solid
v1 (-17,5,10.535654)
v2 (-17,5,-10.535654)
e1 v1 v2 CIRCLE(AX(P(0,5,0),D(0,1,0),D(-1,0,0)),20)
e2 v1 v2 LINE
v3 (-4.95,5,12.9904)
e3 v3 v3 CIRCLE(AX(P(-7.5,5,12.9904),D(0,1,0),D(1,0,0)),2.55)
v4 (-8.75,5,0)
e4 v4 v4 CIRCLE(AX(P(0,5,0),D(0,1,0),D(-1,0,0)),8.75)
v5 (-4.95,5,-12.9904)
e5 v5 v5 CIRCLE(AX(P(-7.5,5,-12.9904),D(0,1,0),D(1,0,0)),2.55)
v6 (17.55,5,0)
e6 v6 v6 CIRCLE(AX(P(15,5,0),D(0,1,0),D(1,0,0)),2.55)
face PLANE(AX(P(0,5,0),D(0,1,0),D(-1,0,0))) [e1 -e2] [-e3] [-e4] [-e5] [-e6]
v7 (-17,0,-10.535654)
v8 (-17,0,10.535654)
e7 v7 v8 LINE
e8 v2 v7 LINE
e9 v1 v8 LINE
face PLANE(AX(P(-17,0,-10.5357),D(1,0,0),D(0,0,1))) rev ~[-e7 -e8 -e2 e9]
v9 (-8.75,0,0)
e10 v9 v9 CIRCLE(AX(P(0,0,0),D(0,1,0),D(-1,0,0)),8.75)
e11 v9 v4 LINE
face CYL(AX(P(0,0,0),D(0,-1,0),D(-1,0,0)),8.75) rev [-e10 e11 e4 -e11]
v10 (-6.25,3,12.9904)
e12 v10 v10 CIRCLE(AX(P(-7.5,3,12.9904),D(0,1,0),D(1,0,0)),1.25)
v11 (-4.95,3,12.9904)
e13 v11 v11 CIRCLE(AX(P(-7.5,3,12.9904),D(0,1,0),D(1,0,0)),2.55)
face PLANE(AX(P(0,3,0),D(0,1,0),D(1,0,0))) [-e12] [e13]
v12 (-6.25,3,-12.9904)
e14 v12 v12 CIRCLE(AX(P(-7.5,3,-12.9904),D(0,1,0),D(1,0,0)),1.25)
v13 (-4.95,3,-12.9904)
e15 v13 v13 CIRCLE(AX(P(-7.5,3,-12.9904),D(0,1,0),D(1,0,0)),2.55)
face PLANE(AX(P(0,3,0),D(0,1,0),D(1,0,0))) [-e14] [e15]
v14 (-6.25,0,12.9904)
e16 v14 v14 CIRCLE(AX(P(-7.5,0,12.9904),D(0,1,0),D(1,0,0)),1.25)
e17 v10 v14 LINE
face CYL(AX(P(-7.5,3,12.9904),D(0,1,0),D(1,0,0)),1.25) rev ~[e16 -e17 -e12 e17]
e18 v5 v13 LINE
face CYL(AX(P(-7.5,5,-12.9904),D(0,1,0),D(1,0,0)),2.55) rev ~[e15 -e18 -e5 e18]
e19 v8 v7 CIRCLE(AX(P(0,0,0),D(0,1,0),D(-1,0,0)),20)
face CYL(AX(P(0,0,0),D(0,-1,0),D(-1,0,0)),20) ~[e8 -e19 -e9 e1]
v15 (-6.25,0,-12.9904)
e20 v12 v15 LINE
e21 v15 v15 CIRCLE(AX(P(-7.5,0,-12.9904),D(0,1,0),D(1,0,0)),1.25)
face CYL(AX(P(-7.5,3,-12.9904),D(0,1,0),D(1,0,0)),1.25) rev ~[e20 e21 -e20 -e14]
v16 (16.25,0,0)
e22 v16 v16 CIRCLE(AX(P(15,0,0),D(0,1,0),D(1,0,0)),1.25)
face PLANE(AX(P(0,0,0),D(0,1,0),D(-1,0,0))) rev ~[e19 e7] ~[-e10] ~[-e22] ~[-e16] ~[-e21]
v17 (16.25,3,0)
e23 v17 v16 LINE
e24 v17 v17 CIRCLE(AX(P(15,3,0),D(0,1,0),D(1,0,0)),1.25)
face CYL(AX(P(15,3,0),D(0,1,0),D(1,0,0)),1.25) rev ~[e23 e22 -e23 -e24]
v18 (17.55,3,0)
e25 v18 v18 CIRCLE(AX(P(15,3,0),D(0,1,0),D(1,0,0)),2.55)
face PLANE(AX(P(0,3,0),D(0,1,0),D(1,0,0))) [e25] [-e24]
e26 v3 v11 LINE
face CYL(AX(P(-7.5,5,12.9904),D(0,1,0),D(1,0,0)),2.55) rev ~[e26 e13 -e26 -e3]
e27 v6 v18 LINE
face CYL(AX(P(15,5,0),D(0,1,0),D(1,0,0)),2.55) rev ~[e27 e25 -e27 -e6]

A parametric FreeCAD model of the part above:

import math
import FreeCAD as App
import Part
import Sketcher
Q = App.Units.Quantity

doc = App.newDocument("Part")
body = doc.addObject("PartDesign::Body", "Body")

# Sketch on XZ plane
sketch1 = body.newObject("Sketcher::SketchObject", "Sketch")
sketch1.AttachmentSupport = (doc.getObject("XZ_Plane"), [""])
sketch1.MapMode = "FlatFace"
sketch1.addGeometry(Part.Circle(App.Vector(0, 0, 0), App.Vector(0, 0, 1), 20), False)
sketch1.addGeometry(Part.Circle(App.Vector(0, 0, 0), App.Vector(0, 0, 1), 9), False)
sketch1.addConstraint(Sketcher.Constraint("Coincident", 0, 3, -1, 1))
sketch1.addConstraint(Sketcher.Constraint("Coincident", 1, 3, -1, 1))
sketch1.addConstraint(Sketcher.Constraint("Diameter", 0, Q("40 mm")))
sketch1.addConstraint(Sketcher.Constraint("Diameter", 1, Q("17.5 mm")))
pad1 = body.newObject("PartDesign::Pad", "Pad")
pad1.Profile = sketch1
pad1.Length = 5
pad1.Reversed = True

# Sketch on XZ plane
sketch2 = body.newObject("Sketcher::SketchObject", "Sketch001")
sketch2.AttachmentSupport = (doc.getObject("XZ_Plane"), [""])
sketch2.MapMode = "FlatFace"
sketch2.AttachmentOffset = App.Placement(App.Vector(0, 0, -5), App.Rotation())
sketch2.addGeometry(Part.Circle(App.Vector(15, 0, 0), App.Vector(0, 0, 1), 2.5), False)
sketch2.addGeometry(Part.Circle(App.Vector(-7.5, -13, 0), App.Vector(0, 0, 1), 2.5), False)
sketch2.addGeometry(Part.Circle(App.Vector(-7.5, 13, 0), App.Vector(0, 0, 1), 2.5), False)
sketch2.addConstraint(Sketcher.Constraint("Equal", 0, 1))
sketch2.addConstraint(Sketcher.Constraint("Equal", 1, 2))
sketch2.addConstraint(Sketcher.Constraint("Symmetric", 1, 3, 2, 3, -1))
sketch2.addConstraint(Sketcher.Constraint("PointOnObject", 0, 3, -1))
sketch2.addConstraint(Sketcher.Constraint("Diameter", 0, Q("5.1 mm")))
sketch2.addConstraint(Sketcher.Constraint("DistanceX", -1, 1, 0, 3, Q("15 mm")))
sketch2.addConstraint(Sketcher.Constraint("DistanceX", 1, 3, -1, 1, Q("7.5 mm")))
sketch2.addConstraint(Sketcher.Constraint("DistanceY", 1, 3, -1, 1, Q("12.9904 mm")))
pocket1 = body.newObject("PartDesign::Pocket", "Pocket")
pocket1.Profile = sketch2
pocket1.Length = 2
pocket1.Reversed = True

# Sketch on XZ plane
sketch3 = body.newObject("Sketcher::SketchObject", "Sketch002")
sketch3.AttachmentSupport = (doc.getObject("XZ_Plane"), [""])
sketch3.MapMode = "FlatFace"
sketch3.AttachmentOffset = App.Placement(App.Vector(0, 0, -3), App.Rotation())
sketch3.addGeometry(Part.Circle(App.Vector(-7.5, 13, 0), App.Vector(0, 0, 1), 1.2), False)
sketch3.addGeometry(Part.Circle(App.Vector(15, 0, 0), App.Vector(0, 0, 1), 1.2), False)
sketch3.addGeometry(Part.Circle(App.Vector(-7.5, -13, 0), App.Vector(0, 0, 1), 1.2), False)
sketch3.addConstraint(Sketcher.Constraint("Equal", 0, 1))
sketch3.addConstraint(Sketcher.Constraint("Equal", 1, 2))
sketch3.addConstraint(Sketcher.Constraint("Symmetric", 0, 3, 2, 3, -1))
sketch3.addConstraint(Sketcher.Constraint("PointOnObject", 1, 3, -1))
sketch3.addConstraint(Sketcher.Constraint("Diameter", 0, Q("2.5 mm")))
sketch3.addConstraint(Sketcher.Constraint("DistanceX", -1, 1, 1, 3, Q("15 mm")))
sketch3.addConstraint(Sketcher.Constraint("DistanceX", 0, 3, -1, 1, Q("7.5 mm")))
sketch3.addConstraint(Sketcher.Constraint("DistanceY", -1, 1, 0, 3, Q("12.9904 mm")))
pocket2 = body.newObject("PartDesign::Pocket", "Pocket001")
pocket2.Profile = sketch3
pocket2.Length = 3
pocket2.Reversed = True

# Sketch on XZ plane
sketch4 = body.newObject("Sketcher::SketchObject", "Sketch003")
sketch4.AttachmentSupport = (doc.getObject("XZ_Plane"), [""])
sketch4.MapMode = "FlatFace"
sketch4.addGeometry(Part.ArcOfCircle(Part.Circle(App.Vector(0, 0, 0), App.Vector(0, 0, 1), 20), math.radians(148), math.radians(212)), False)
sketch4.addGeometry(Part.LineSegment(App.Vector(-17, -11, 0), App.Vector(-17, 11, 0)), False)
sketch4.addConstraint(Sketcher.Constraint("Coincident", 0, 1, 1, 2))
sketch4.addConstraint(Sketcher.Constraint("Coincident", 1, 1, 0, 2))
sketch4.addConstraint(Sketcher.Constraint("Vertical", 1))
sketch4.addConstraint(Sketcher.Constraint("Coincident", 0, 3, -1, 1))
sketch4.addConstraint(Sketcher.Constraint("Radius", 0, Q("20 mm")))
sketch4.addConstraint(Sketcher.Constraint("DistanceX", 0, 1, -1, 1, Q("17 mm")))
pocket3 = body.newObject("PartDesign::Pocket", "Pocket002")
pocket3.Profile = sketch4
pocket3.Length = 10

doc.recompute()
